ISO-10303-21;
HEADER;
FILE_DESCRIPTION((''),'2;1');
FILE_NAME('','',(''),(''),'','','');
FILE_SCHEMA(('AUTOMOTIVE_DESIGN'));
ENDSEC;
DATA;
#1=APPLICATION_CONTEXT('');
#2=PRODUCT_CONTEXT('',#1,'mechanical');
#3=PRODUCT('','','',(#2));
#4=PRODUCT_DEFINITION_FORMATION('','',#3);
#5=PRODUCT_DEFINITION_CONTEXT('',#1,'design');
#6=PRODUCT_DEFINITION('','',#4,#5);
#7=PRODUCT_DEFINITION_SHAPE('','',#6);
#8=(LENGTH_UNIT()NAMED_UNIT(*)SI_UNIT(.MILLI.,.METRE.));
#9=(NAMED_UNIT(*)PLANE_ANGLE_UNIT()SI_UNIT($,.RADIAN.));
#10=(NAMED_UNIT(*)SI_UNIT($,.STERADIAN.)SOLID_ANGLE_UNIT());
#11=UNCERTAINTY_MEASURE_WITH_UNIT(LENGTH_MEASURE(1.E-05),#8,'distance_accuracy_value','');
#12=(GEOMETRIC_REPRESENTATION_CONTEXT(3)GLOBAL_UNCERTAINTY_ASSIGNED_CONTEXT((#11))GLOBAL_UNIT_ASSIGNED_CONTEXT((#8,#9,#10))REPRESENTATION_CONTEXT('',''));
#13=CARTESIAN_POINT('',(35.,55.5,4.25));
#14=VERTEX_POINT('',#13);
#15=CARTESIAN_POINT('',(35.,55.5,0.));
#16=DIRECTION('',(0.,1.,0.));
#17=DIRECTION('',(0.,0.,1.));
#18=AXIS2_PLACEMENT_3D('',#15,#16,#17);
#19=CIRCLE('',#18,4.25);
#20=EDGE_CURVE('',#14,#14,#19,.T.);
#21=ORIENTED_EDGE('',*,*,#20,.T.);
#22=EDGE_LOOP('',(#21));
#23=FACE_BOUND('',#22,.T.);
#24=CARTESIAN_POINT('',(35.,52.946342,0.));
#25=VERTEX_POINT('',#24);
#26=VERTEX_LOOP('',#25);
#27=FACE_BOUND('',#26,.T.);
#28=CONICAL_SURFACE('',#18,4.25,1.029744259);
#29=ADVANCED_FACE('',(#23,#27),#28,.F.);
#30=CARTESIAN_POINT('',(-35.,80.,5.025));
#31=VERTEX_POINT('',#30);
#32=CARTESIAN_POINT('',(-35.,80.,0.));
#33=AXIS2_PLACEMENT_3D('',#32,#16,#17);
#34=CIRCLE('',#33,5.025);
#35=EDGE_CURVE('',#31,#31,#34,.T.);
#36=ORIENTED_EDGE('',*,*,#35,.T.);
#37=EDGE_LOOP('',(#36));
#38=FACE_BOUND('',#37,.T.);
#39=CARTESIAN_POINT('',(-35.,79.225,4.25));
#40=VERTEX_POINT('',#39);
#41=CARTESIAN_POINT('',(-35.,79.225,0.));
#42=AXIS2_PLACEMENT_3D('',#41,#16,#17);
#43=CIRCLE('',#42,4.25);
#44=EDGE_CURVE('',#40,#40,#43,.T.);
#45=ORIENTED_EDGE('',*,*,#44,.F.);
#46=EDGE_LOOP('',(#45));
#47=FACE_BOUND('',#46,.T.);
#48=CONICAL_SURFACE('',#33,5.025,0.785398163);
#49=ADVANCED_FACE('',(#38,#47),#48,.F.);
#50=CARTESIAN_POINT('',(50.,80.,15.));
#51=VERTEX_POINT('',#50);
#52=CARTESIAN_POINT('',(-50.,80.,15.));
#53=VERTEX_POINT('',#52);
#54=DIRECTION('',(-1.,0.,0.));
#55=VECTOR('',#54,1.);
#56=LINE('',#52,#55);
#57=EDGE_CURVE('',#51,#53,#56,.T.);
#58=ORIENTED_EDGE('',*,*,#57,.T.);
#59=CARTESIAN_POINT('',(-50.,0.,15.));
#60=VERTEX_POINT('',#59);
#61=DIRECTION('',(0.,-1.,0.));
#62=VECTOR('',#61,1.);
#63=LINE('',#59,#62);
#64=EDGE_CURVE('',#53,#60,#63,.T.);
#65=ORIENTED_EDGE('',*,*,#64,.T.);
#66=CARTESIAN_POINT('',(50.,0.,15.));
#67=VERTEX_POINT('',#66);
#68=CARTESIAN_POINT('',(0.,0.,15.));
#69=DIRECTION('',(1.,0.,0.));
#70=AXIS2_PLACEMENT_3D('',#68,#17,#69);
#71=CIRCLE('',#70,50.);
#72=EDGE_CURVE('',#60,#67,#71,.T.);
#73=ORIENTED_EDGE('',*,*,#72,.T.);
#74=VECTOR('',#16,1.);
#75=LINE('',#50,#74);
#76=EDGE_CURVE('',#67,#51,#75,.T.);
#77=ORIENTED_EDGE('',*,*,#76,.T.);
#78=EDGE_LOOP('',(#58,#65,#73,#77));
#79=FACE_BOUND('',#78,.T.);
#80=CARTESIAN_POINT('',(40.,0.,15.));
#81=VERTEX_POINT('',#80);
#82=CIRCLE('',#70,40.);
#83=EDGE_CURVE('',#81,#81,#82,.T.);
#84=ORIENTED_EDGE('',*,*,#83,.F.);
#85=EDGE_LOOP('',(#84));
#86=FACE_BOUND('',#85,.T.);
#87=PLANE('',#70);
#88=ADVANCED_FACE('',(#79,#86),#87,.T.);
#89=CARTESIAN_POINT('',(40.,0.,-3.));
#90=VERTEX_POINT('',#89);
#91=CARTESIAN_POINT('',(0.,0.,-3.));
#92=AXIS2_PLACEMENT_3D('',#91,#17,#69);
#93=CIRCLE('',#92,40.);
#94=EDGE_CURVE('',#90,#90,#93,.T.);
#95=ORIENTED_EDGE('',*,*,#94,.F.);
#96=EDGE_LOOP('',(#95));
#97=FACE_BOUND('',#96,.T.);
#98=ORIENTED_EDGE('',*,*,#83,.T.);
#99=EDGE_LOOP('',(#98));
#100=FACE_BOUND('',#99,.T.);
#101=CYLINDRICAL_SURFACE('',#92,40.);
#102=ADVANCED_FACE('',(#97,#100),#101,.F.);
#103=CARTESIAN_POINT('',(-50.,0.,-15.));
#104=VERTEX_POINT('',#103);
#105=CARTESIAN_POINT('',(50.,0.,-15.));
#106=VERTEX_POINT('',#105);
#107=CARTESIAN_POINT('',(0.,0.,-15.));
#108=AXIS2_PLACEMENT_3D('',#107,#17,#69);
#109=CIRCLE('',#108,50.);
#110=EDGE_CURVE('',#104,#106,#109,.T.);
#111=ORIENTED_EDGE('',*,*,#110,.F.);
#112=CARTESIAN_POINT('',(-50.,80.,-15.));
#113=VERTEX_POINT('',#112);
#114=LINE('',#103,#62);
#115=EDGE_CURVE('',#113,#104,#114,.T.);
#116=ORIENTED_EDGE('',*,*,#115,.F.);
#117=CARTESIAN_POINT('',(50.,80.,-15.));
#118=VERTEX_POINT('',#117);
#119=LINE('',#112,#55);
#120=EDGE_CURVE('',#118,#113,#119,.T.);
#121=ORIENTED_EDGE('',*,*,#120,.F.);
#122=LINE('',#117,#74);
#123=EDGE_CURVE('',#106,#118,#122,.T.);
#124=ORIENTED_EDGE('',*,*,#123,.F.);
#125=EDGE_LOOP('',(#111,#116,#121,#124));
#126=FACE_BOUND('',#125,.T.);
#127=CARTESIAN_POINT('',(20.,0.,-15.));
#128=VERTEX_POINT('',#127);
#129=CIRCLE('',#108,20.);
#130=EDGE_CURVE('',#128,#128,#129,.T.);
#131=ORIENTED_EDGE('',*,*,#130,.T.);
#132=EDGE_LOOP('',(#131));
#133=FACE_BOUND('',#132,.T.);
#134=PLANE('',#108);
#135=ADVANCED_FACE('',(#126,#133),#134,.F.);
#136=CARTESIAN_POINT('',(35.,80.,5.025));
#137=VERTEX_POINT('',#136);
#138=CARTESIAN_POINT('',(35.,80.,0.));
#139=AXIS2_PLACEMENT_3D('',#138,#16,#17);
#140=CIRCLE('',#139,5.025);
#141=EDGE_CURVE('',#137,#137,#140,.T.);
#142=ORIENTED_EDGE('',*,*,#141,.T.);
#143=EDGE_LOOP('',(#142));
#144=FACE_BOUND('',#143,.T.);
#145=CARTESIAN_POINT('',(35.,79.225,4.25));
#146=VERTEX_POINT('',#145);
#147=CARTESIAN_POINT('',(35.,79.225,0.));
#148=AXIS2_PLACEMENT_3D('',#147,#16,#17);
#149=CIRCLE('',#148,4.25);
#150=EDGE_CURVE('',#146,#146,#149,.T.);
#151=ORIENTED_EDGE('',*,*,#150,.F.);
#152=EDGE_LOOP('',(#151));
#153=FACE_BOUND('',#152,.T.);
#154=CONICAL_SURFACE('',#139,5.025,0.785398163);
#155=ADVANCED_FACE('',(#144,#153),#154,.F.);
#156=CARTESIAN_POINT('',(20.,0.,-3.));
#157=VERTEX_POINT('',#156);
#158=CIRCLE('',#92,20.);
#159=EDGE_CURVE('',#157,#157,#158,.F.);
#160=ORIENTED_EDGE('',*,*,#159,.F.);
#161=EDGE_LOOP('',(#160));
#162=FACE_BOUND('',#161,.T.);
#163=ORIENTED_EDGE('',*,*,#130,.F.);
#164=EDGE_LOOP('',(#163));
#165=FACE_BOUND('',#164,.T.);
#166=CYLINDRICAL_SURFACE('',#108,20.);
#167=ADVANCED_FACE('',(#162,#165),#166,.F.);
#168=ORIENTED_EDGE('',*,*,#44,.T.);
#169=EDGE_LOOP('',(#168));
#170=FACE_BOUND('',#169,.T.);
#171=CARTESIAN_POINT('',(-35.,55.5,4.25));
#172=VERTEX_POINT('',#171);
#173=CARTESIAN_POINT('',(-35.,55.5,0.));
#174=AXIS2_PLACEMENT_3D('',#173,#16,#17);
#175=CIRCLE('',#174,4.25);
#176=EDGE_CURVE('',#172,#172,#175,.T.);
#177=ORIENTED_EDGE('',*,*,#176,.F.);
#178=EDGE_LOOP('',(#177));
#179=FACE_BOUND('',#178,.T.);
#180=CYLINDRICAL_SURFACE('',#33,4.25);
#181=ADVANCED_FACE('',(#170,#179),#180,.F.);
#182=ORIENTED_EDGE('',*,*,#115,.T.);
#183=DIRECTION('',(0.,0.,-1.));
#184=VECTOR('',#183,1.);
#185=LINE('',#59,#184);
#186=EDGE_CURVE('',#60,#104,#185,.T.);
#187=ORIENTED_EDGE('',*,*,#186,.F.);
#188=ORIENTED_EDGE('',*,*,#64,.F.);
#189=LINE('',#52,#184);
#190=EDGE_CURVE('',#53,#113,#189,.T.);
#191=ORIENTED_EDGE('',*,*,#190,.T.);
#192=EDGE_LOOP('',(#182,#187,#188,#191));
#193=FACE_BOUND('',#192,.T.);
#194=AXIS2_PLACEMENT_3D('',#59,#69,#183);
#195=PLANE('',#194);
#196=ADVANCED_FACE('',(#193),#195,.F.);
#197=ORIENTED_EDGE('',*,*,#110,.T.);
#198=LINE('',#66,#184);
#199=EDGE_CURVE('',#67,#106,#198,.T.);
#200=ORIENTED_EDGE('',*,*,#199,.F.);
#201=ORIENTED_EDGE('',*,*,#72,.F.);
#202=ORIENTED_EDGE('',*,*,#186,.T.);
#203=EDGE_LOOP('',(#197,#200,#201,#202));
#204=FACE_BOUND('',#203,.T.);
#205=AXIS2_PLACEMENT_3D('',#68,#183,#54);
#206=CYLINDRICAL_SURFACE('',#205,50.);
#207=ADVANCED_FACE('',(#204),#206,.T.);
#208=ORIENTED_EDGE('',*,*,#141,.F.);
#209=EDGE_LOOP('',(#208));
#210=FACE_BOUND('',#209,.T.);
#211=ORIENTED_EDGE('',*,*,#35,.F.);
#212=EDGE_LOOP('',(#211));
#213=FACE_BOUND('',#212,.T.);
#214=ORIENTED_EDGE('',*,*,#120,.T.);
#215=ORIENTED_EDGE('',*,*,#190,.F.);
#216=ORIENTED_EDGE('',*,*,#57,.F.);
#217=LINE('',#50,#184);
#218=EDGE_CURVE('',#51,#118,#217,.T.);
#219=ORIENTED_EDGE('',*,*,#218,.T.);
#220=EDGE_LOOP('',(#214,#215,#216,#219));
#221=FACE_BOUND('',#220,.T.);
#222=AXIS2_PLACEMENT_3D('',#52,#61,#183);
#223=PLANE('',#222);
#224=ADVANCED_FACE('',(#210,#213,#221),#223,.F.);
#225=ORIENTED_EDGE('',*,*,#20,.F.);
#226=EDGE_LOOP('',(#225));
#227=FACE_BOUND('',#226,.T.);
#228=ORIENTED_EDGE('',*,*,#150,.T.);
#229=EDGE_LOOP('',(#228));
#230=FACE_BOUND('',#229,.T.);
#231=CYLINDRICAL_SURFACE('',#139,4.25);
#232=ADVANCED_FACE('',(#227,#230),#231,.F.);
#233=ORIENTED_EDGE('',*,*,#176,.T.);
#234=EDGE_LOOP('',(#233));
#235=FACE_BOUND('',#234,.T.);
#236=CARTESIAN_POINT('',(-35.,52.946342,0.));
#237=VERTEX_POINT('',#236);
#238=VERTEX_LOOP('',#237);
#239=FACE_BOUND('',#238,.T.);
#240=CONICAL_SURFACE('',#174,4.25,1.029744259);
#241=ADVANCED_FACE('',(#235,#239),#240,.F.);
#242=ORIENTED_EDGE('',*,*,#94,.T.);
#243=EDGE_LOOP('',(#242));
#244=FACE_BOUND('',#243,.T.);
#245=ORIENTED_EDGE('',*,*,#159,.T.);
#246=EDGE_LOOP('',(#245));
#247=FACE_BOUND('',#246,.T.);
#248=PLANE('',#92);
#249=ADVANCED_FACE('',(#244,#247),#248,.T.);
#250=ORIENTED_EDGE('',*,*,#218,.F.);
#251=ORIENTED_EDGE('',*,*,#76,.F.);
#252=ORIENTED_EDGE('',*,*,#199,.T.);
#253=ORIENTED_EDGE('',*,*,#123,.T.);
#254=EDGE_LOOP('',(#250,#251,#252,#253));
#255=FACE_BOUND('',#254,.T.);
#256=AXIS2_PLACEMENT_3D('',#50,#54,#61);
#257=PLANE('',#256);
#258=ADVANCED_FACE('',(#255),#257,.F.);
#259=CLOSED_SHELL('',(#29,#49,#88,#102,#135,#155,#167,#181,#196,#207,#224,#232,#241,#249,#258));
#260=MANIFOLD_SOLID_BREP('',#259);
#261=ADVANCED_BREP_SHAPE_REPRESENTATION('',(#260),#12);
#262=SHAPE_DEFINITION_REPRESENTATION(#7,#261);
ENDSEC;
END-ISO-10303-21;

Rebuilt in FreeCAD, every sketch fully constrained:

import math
import FreeCAD as App
import Part
import Sketcher
from FreeCAD import Vector
Q = App.Units.Quantity

doc = App.newDocument("Part")
params = doc.addObject("Spreadsheet::Sheet", "Params")
for row, (alias, value) in enumerate([
    ("sketch1_radius", "50 mm"),
    ("sketch1_height", "80 mm"),
    ("pad1_length", "30 mm"),
    ("sketch2_diameter", "40 mm"),
    ("pocket1_length", "30 mm"),
    ("sketch3_diameter", "80 mm"),
    ("pocket2_length", "18 mm"),
    ("sketch4_diameter", "8.5 mm"),
    ("hole_diameter", "8.5 mm"),
    ("hole_depth", "24.5 mm"),
    ("hole_csink_diameter", "10.05 mm"),
], start=1):
    params.set(f"A{row}", alias)
    params.set(f"B{row}", "=" + value)
    params.setAlias(f"B{row}", alias)

body = doc.addObject("PartDesign::Body", "Body")

# Sketch on XY plane
sketch1 = body.newObject("Sketcher::SketchObject", "Sketch")
sketch1.AttachmentSupport = (doc.getObject("XY_Plane"), [""])
sketch1.MapMode = "FlatFace"
sketch1.addGeometry([
    Part.LineSegment(Vector(-50, 80, 0), Vector(-50, 0, 0)),
    Part.ArcOfCircle(Part.Circle(Vector(0, 0, 0), Vector(0, 0, 1), 50), math.radians(180), math.radians(360)),
    Part.LineSegment(Vector(50, 0, 0), Vector(50, 80, 0)),
    Part.LineSegment(Vector(50, 80, 0), Vector(-50, 80, 0)),
], False)
sketch1.addConstraint([
    Sketcher.Constraint("Tangent", 0, 2, 1, 1),
    Sketcher.Constraint("Tangent", 1, 2, 2, 1),
    Sketcher.Constraint("Coincident", 2, 2, 3, 1),
    Sketcher.Constraint("Coincident", 3, 2, 0, 1),
    Sketcher.Constraint("Vertical", 0),
    Sketcher.Constraint("Vertical", 2),
    Sketcher.Constraint("Horizontal", 3),
    Sketcher.Constraint("Coincident", 1, 3, -1, 1),
    Sketcher.Constraint("Radius", 1, Q("50 mm")),
    Sketcher.Constraint("DistanceY", 0, 2, 0, 1, Q("80 mm")),
])
sketch1.setExpression("Constraints[8]", "Params.sketch1_radius")
sketch1.setExpression("Constraints[9]", "Params.sketch1_height")
pad1 = body.newObject("PartDesign::Pad", "Pad")
pad1.Profile = sketch1
pad1.setExpression("Length", "Params.pad1_length")
pad1.Midplane = True

# Sketch on XY plane
sketch2 = body.newObject("Sketcher::SketchObject", "Sketch001")
sketch2.AttachmentSupport = (doc.getObject("XY_Plane"), [""])
sketch2.MapMode = "FlatFace"
sketch2.AttachmentOffset = App.Placement(Vector(0, 0, 15), App.Rotation())
sketch2.addGeometry(Part.Circle(Vector(0, 0, 0), Vector(0, 0, 1), 20), False)
sketch2.addConstraint([
    Sketcher.Constraint("Coincident", 0, 3, -1, 1),
    Sketcher.Constraint("Diameter", 0, Q("40 mm")),
])
sketch2.setExpression("Constraints[1]", "Params.sketch2_diameter")
pocket1 = body.newObject("PartDesign::Pocket", "Pocket")
pocket1.Profile = sketch2
pocket1.setExpression("Length", "Params.pocket1_length")

# Sketch on XY plane
sketch3 = body.newObject("Sketcher::SketchObject", "Sketch002")
sketch3.AttachmentSupport = (doc.getObject("XY_Plane"), [""])
sketch3.MapMode = "FlatFace"
sketch3.AttachmentOffset = App.Placement(Vector(0, 0, 15), App.Rotation())
sketch3.addGeometry(Part.Circle(Vector(0, 0, 0), Vector(0, 0, 1), 40), False)
sketch3.addConstraint([
    Sketcher.Constraint("Coincident", 0, 3, -1, 1),
    Sketcher.Constraint("Diameter", 0, Q("80 mm")),
])
sketch3.setExpression("Constraints[1]", "Params.sketch3_diameter")
pocket2 = body.newObject("PartDesign::Pocket", "Pocket001")
pocket2.Profile = sketch3
pocket2.setExpression("Length", "Params.pocket2_length")

# Sketch on XZ plane
sketch4 = body.newObject("Sketcher::SketchObject", "Sketch003")
sketch4.AttachmentSupport = (doc.getObject("XZ_Plane"), [""])
sketch4.MapMode = "FlatFace"
sketch4.AttachmentOffset = App.Placement(Vector(0, 0, -80), App.Rotation())
sketch4.addGeometry([
    Part.Circle(Vector(-35, 0, 0), Vector(0, 0, 1), 4.2),
    Part.Circle(Vector(35, 0, 0), Vector(0, 0, 1), 4.2),
], False)
sketch4.addConstraint([
    Sketcher.Constraint("Equal", 0, 1),
    Sketcher.Constraint("Symmetric", 0, 3, 1, 3, -1, 1),
    Sketcher.Constraint("PointOnObject", 0, 3, -1),
    Sketcher.Constraint("Diameter", 0, Q("8.5 mm")),
    Sketcher.Constraint("DistanceX", 0, 3, -1, 1, Q("35 mm")),
])
sketch4.setExpression("Constraints[3]", "Params.sketch4_diameter")
doc.recompute()
hole = body.newObject("PartDesign::Hole", "Hole")
hole.Profile = sketch4
hole.ThreadType = "None"
hole.setExpression("Diameter", "Params.hole_diameter")
hole.DepthType = "Dimension"
hole.setExpression("Depth", "Params.hole_depth")
hole.DrillPoint = "Angled"
hole.DrillPointAngle = 118
hole.HoleCutType = "Countersink"
hole.setExpression("HoleCutDiameter", "Params.hole_csink_diameter")
hole.HoleCutCountersinkAngle = 90
hole.Reversed = True

doc.recompute()
